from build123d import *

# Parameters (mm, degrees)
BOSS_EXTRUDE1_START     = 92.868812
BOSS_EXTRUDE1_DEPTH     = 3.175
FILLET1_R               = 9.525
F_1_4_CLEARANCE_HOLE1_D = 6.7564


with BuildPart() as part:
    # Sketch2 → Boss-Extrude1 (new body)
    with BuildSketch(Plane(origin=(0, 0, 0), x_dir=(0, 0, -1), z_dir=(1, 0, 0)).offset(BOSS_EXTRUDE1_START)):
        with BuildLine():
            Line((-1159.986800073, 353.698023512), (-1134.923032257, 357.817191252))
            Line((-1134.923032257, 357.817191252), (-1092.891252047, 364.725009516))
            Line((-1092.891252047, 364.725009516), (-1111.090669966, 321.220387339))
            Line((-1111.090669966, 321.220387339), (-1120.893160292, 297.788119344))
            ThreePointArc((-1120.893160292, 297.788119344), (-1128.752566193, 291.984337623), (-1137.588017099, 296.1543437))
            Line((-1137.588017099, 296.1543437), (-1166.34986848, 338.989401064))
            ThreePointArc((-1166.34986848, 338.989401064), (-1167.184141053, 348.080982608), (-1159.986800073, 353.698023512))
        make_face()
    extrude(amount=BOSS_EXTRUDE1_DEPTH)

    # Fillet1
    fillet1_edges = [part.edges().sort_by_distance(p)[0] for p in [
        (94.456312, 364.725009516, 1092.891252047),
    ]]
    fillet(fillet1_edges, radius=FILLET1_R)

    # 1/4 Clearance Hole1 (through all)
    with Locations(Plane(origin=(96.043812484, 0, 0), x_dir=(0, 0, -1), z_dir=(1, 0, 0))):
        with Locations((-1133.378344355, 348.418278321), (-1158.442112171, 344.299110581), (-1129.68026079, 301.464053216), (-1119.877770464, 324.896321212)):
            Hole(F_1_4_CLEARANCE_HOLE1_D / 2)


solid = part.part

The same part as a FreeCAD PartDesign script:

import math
import FreeCAD as App
import Part
import Sketcher

V = App.Vector
Q = App.Units.Quantity


def edges_at(feature, points):
    """Names of the edges that pass closest to the given points."""
    edges = feature.Shape.Edges
    near = lambda p: min(range(len(edges)), key=lambda i: edges[i].distToShape(Part.Vertex(*p))[0])
    return sorted({f"Edge{near(p) + 1}" for p in points})

doc = App.newDocument("Part")
body = doc.addObject("PartDesign::Body", "Body")

sketch1 = body.newObject("Sketcher::SketchObject", "Sketch")
sketch1.AttachmentSupport = (doc.getObject("YZ_Plane"), [""])
sketch1.MapMode = "FlatFace"
sketch1.AttachmentOffset = App.Placement(V(0, 0, 92.868812), App.Rotation())
sketch1.addGeometry([
    Part.LineSegment(V(358, 1135, 0), V(354, 1160, 0)),
    Part.ArcOfCircle(Part.Circle(V(344, 1158, 0), V(0, 0, 1), 10), math.radians(9), math.radians(124)),
    Part.LineSegment(V(339, 1166, 0), V(296, 1138, 0)),
    Part.ArcOfCircle(Part.Circle(V(301, 1130, 0), V(0, 0, 1), 10), math.radians(124), math.radians(247)),
    Part.LineSegment(V(298, 1121, 0), V(321, 1111, 0)),
    Part.LineSegment(V(321, 1111, 0), V(365, 1093, 0)),
    Part.LineSegment(V(365, 1093, 0), V(358, 1135, 0)),
], False)
sketch1.addConstraint([
    Sketcher.Constraint("Tangent", 0, 2, 1, 1),
    Sketcher.Constraint("Tangent", 1, 2, 2, 1),
    Sketcher.Constraint("Tangent", 2, 2, 3, 1),
    Sketcher.Constraint("Tangent", 3, 2, 4, 1),
    Sketcher.Constraint("Coincident", 4, 2, 5, 1),
    Sketcher.Constraint("Coincident", 5, 2, 6, 1),
    Sketcher.Constraint("Coincident", 6, 2, 0, 1),
    Sketcher.Constraint("Equal", 1, 3),
    Sketcher.Constraint("Parallel", 4, 5),
    Sketcher.Constraint("Parallel", 0, 6),
    Sketcher.Constraint("Equal", 0, 4),
    Sketcher.Constraint("Distance", 0, Q("1 in")),
    Sketcher.Constraint("Radius", 1, Q("0.375 in")),
    Sketcher.Constraint("DistanceY", -1, 1, 0, 2, 1159.9868),
    Sketcher.Constraint("DistanceX", -1, 1, 1, 2, 338.989401),
    Sketcher.Constraint("DistanceY", 3, 2, 3, 3, 8.7871),
    Sketcher.Constraint("DistanceY", 4, 2, 1, 2, 55.259199),
    Sketcher.Constraint("DistanceX", 1, 3, 5, 2, 20.425899),
    Sketcher.Constraint("Distance", 2, 51.595409),
])
pad1 = body.newObject("PartDesign::Pad", "Pad")
pad1.Profile = sketch1
pad1.Length = Q("0.125 in")
doc.recompute()

fillet = body.newObject("PartDesign::Fillet", "Fillet")
fillet.Base = (pad1, edges_at(pad1, [(94.456, 364.725, 1092.891)]))
fillet.Radius = Q("0.375 in")

sketch2 = body.newObject("Sketcher::SketchObject", "Sketch001")
sketch2.AttachmentSupport = (doc.getObject("YZ_Plane"), [""])
sketch2.MapMode = "FlatFace"
sketch2.AttachmentOffset = App.Placement(V(0, 0, 96.043812), App.Rotation())
sketch2.addGeometry([
    Part.Circle(V(348.4, 1133.4, 0), V(0, 0, 1), 3.4),
    Part.Circle(V(344.3, 1158.4, 0), V(0, 0, 1), 3.4),
    Part.Circle(V(301.5, 1129.7, 0), V(0, 0, 1), 3.4),
    Part.Circle(V(324.9, 1119.9, 0), V(0, 0, 1), 3.4),
], False)
sketch2.addConstraint([
    Sketcher.Constraint("Equal", 0, 1),
    Sketcher.Constraint("Equal", 1, 2),
    Sketcher.Constraint("Equal", 2, 3),
    Sketcher.Constraint("Diameter", 0, Q("0.266 in")),
    Sketcher.Constraint("DistanceX", -1, 1, 0, 3, 348.418278),
    Sketcher.Constraint("DistanceX", -1, 1, 1, 3, 344.299111),
    Sketcher.Constraint("DistanceY", -1, 1, 2, 3, 1129.680261),
    Sketcher.Constraint("DistanceX", -1, 1, 3, 3, 324.896321),
    Sketcher.Constraint("DistanceY", -1, 1, 3, 3, 1119.87777),
    Sketcher.Constraint("DistanceY", 2, 3, 1, 3, 28.761851),
    Sketcher.Constraint("DistanceY", -1, 1, 0, 3, 1133.378344),
    Sketcher.Constraint("DistanceX", -1, 1, 2, 3, 301.464053),
])
doc.recompute()
hole = body.newObject("PartDesign::Hole", "Hole")
hole.Profile = sketch2
hole.ThreadType = "None"
hole.Diameter = Q("0.266 in")
hole.DepthType = "ThroughAll"

doc.recompute()
